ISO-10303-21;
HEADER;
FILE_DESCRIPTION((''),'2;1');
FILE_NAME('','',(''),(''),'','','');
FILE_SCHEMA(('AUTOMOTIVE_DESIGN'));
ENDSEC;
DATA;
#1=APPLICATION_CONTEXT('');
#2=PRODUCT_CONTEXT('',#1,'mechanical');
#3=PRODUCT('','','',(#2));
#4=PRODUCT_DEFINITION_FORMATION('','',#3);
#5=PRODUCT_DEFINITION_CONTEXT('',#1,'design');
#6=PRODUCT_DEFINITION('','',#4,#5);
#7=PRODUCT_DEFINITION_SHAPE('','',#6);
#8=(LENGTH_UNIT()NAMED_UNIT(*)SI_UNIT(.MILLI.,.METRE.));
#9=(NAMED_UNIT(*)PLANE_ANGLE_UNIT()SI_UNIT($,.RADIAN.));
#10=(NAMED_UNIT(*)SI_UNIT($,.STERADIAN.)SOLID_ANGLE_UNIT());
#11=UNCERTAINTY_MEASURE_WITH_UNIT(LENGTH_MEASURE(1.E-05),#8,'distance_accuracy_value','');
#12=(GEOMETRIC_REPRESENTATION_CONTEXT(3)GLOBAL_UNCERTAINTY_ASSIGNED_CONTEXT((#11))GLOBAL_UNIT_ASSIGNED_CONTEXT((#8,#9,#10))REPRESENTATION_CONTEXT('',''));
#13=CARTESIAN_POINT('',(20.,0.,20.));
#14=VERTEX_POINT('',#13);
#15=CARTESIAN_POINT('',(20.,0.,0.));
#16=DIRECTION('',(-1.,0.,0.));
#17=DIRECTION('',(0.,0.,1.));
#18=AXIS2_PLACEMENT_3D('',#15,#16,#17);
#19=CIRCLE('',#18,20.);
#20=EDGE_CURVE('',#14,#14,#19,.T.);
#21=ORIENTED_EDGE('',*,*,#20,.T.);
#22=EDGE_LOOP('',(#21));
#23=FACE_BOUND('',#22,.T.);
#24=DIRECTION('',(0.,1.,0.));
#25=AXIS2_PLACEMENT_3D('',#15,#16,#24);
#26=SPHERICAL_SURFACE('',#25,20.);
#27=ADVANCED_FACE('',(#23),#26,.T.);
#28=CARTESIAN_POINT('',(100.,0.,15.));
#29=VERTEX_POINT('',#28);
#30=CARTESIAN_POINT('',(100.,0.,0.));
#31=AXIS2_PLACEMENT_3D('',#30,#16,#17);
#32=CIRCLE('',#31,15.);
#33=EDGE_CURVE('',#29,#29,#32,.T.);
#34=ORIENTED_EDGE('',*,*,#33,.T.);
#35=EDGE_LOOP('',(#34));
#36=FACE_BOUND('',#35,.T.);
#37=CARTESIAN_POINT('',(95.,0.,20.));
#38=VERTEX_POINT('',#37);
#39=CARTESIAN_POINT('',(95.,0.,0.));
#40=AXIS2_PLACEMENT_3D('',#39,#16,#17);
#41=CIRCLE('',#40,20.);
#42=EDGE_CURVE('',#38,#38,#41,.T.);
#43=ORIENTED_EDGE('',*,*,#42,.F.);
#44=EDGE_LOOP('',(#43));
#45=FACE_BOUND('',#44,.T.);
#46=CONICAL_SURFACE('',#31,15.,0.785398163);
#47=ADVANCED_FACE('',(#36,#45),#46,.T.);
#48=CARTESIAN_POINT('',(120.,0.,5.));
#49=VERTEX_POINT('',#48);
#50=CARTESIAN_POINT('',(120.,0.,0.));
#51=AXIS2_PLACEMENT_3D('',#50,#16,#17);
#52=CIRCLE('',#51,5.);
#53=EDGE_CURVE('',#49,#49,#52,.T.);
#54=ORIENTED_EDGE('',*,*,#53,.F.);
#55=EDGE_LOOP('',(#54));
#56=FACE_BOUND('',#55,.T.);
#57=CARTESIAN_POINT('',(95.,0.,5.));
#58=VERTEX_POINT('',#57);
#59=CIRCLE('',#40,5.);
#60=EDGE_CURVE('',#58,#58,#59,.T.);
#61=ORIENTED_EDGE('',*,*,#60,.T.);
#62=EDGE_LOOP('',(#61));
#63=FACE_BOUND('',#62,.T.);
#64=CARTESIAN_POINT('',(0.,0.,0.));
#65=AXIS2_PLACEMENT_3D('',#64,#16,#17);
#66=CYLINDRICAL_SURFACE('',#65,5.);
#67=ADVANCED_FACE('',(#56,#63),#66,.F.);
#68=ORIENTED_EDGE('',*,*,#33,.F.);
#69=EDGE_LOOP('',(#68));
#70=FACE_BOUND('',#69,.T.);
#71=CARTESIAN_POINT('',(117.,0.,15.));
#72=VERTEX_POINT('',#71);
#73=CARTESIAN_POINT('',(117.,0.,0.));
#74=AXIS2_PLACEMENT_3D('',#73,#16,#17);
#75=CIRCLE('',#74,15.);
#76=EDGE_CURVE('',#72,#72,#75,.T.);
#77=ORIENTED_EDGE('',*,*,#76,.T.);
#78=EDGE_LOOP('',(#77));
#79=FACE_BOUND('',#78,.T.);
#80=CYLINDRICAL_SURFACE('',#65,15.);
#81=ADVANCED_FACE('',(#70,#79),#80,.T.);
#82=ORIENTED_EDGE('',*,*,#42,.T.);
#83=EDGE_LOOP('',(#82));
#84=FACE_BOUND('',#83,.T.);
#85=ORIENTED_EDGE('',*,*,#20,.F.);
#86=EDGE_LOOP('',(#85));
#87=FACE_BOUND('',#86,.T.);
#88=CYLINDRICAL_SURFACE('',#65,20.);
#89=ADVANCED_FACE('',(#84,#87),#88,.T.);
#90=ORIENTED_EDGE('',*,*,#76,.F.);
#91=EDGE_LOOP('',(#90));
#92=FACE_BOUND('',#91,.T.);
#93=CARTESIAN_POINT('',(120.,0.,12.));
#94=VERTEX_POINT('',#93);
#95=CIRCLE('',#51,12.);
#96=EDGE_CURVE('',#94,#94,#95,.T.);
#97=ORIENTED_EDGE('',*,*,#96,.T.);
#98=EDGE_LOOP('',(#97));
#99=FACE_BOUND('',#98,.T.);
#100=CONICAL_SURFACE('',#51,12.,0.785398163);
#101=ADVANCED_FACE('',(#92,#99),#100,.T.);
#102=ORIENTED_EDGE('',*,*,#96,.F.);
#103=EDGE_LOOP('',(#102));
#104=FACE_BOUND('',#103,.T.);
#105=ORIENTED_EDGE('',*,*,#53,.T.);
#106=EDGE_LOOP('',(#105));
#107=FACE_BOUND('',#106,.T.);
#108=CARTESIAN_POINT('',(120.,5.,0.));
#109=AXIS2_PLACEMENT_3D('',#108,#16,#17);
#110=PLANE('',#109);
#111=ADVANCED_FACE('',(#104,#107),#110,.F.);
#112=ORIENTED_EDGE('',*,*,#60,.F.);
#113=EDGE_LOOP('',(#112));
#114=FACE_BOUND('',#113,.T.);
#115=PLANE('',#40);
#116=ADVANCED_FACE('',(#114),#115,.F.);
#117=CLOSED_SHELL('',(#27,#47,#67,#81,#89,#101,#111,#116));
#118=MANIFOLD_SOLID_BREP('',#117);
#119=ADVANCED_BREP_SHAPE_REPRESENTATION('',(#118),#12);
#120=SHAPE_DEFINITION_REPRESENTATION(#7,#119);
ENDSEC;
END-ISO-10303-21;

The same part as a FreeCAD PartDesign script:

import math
import FreeCAD as App
import Part
import Sketcher
Q = App.Units.Quantity

doc = App.newDocument("Part")
body = doc.addObject("PartDesign::Body", "Body")

sketch1 = body.newObject("Sketcher::SketchObject", "Sketch")
sketch1.AttachmentSupport = (doc.getObject("XY_Plane"), [""])
sketch1.MapMode = "FlatFace"
sketch1.addGeometry([
    Part.LineSegment(App.Vector(0, 0, 0), App.Vector(95, 0, 0)),
    Part.LineSegment(App.Vector(95, 0, 0), App.Vector(95, 5, 0)),
    Part.LineSegment(App.Vector(95, 5, 0), App.Vector(120, 5, 0)),
    Part.LineSegment(App.Vector(120, 5, 0), App.Vector(120, 12, 0)),
    Part.LineSegment(App.Vector(120, 12, 0), App.Vector(117, 15, 0)),
    Part.LineSegment(App.Vector(117, 15, 0), App.Vector(100, 15, 0)),
    Part.LineSegment(App.Vector(100, 15, 0), App.Vector(95, 20, 0)),
    Part.LineSegment(App.Vector(95, 20, 0), App.Vector(20, 20, 0)),
    Part.ArcOfCircle(Part.Circle(App.Vector(20, 0, 0), App.Vector(0, 0, 1), 20), math.radians(90), math.radians(180)),
], False)
sketch1.addConstraint([
    Sketcher.Constraint("Coincident", 0, 2, 1, 1),
    Sketcher.Constraint("Coincident", 1, 2, 2, 1),
    Sketcher.Constraint("Coincident", 2, 2, 3, 1),
    Sketcher.Constraint("Coincident", 3, 2, 4, 1),
    Sketcher.Constraint("Coincident", 4, 2, 5, 1),
    Sketcher.Constraint("Coincident", 5, 2, 6, 1),
    Sketcher.Constraint("Coincident", 6, 2, 7, 1),
    Sketcher.Constraint("Tangent", 7, 2, 8, 1),
    Sketcher.Constraint("Coincident", 8, 2, 0, 1),
    Sketcher.Constraint("Horizontal", 0),
    Sketcher.Constraint("Vertical", 1),
    Sketcher.Constraint("Horizontal", 2),
    Sketcher.Constraint("Vertical", 3),
    Sketcher.Constraint("Horizontal", 5),
    Sketcher.Constraint("Horizontal", 7),
    Sketcher.Constraint("Coincident", 8, 2, -1, 1),
    Sketcher.Constraint("PointOnObject", 8, 3, -1),
    Sketcher.Constraint("Parallel", 4, 6),
    Sketcher.Constraint("Vertical", 1, 2, 6, 2),
    Sketcher.Constraint("Radius", 8, Q("20 mm")),
    Sketcher.Constraint("DistanceX", 0, 1, 0, 2, Q("95 mm")),
    Sketcher.Constraint("DistanceX", 2, 1, 2, 2, Q("25 mm")),
    Sketcher.Constraint("DistanceX", 5, 2, 5, 1, Q("17 mm")),
    Sketcher.Constraint("DistanceY", 1, 1, 1, 2, Q("5 mm")),
    Sketcher.Constraint("DistanceY", 3, 1, 3, 2, Q("7 mm")),
    Sketcher.Constraint("DistanceX", -1, 1, 4, 2, Q("117 mm")),
])
revolution = body.newObject("PartDesign::Revolution", "Revolution")
revolution.Profile = sketch1
revolution.ReferenceAxis = (sketch1, ["H_Axis"])
revolution.Angle = 360

doc.recompute()
